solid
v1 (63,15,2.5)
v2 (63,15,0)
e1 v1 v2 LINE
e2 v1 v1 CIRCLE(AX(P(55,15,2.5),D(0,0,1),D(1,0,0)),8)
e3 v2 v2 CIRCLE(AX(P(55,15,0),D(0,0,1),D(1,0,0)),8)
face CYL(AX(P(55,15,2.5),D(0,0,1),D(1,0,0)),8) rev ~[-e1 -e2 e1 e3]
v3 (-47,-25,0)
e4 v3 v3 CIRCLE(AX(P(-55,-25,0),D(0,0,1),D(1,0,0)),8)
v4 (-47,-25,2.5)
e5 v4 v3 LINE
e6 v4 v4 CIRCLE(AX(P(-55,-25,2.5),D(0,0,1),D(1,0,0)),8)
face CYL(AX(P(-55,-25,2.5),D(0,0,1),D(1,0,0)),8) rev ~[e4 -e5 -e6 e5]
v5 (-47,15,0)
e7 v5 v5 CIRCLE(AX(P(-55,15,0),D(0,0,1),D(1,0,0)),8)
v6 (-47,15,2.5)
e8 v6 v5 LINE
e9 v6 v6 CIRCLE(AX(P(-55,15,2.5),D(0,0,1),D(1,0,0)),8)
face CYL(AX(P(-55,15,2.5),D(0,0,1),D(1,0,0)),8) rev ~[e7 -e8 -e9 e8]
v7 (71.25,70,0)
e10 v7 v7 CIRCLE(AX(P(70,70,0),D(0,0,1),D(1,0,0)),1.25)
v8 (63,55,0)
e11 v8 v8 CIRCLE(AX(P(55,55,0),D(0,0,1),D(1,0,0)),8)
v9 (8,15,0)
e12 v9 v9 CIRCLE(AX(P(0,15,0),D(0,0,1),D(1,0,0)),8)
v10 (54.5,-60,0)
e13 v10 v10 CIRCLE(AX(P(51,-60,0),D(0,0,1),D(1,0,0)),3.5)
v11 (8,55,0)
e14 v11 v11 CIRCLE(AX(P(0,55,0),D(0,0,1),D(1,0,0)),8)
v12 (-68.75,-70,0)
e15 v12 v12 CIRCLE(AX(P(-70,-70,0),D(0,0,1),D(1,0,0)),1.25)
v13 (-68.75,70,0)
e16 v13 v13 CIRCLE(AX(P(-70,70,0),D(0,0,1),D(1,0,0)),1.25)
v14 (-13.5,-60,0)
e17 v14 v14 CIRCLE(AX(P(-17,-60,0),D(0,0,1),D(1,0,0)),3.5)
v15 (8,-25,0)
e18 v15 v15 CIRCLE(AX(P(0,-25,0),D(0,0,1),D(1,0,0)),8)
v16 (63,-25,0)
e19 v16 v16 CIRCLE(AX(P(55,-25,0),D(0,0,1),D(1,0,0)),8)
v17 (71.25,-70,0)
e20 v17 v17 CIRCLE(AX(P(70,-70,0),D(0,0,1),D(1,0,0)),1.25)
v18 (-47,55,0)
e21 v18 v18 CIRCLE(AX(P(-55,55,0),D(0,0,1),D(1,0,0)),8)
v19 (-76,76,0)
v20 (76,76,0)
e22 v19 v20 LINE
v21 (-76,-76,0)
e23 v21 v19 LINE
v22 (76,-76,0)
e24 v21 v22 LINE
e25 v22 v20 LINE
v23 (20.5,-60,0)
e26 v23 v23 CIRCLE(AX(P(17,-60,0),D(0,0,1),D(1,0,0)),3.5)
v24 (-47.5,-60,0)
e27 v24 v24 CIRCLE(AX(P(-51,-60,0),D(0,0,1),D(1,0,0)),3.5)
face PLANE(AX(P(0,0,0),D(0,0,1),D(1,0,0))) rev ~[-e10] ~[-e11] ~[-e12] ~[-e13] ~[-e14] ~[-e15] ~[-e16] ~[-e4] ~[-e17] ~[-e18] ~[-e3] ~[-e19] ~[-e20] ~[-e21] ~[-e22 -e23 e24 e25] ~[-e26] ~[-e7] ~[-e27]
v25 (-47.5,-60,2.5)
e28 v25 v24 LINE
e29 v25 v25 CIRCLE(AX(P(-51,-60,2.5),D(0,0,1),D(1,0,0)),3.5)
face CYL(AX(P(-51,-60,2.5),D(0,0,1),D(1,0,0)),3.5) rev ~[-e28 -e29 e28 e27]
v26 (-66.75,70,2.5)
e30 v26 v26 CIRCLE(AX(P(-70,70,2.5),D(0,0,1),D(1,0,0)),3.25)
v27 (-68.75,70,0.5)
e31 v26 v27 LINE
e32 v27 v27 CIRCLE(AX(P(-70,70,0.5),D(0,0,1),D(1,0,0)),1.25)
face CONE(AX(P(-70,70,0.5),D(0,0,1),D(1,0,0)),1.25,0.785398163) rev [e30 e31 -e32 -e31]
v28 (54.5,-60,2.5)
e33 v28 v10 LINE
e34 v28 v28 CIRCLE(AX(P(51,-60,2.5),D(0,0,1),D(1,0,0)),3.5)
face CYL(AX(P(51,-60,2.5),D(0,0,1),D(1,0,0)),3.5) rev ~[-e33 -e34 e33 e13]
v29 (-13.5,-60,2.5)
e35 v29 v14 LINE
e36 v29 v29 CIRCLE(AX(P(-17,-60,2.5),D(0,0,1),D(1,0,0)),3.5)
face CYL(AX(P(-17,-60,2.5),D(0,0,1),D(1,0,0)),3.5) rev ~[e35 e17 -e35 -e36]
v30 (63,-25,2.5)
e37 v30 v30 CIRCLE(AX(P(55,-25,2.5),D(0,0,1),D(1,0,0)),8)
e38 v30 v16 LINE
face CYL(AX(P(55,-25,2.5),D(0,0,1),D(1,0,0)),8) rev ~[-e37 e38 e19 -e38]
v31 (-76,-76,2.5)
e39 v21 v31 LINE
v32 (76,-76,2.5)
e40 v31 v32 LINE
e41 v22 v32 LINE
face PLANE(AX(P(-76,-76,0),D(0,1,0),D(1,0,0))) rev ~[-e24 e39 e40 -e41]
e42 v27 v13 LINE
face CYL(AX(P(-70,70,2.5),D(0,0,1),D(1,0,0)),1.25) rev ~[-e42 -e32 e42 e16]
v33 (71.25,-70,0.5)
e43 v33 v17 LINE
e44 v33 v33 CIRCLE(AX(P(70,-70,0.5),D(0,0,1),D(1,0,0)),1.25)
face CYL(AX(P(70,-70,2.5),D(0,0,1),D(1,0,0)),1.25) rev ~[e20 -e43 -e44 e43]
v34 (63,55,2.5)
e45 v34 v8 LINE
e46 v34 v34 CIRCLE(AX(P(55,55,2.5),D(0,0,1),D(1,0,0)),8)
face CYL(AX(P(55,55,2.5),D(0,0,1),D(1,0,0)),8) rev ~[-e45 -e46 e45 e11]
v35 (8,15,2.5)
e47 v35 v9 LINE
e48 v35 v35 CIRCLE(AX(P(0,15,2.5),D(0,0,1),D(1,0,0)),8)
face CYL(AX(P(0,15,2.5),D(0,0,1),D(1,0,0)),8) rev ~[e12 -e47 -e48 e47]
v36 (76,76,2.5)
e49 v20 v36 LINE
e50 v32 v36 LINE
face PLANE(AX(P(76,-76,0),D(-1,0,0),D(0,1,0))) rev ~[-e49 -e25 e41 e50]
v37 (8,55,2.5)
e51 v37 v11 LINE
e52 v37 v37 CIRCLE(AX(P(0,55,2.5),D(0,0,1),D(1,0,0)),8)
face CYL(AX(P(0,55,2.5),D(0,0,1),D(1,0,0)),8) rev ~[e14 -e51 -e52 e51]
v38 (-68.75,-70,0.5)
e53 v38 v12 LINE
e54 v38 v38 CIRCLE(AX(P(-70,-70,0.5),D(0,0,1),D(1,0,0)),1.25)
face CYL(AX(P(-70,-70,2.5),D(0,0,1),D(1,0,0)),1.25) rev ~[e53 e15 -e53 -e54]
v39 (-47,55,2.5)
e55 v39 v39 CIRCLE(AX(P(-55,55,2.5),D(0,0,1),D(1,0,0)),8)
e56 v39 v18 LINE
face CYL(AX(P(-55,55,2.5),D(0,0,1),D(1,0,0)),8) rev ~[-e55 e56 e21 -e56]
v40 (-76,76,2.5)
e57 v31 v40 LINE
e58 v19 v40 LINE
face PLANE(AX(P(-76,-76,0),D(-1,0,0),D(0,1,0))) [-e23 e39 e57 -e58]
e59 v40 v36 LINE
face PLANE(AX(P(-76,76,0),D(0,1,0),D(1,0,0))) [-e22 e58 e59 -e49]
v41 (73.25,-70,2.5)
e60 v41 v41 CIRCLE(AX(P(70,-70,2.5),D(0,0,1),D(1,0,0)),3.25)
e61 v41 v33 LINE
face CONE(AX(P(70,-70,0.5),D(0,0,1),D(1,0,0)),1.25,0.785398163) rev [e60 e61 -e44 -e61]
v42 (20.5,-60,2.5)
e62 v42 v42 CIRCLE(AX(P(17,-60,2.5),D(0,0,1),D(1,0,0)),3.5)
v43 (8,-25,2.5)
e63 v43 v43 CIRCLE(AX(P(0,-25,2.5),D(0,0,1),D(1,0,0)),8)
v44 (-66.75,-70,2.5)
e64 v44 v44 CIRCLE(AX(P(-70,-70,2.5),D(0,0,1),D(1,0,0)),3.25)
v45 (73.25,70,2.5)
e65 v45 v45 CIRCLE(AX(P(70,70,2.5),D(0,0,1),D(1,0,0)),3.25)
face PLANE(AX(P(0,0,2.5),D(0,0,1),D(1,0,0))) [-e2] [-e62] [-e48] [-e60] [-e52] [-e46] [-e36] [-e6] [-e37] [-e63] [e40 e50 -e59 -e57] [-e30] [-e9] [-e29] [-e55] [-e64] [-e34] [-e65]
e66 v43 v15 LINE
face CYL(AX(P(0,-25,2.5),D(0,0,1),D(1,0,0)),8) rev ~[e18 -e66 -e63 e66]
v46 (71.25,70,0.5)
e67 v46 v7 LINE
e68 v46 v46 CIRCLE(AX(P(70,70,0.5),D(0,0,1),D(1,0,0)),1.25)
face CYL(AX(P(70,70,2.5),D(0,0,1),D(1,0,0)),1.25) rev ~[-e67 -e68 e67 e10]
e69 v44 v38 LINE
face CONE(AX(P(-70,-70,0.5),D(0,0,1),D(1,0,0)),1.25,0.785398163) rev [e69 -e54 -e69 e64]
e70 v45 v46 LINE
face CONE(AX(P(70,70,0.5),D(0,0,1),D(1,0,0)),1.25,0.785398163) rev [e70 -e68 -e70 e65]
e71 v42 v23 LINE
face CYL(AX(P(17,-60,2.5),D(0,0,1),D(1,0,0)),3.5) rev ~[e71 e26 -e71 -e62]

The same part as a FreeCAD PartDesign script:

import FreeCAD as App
import Part
import Sketcher

V = App.Vector
Q = App.Units.Quantity


def edges_at(feature, points):
    """Names of the edges that pass closest to the given points."""
    edges = feature.Shape.Edges
    near = lambda p: min(range(len(edges)), key=lambda i: edges[i].distToShape(Part.Vertex(*p))[0])
    return sorted({f"Edge{near(p) + 1}" for p in points})

doc = App.newDocument("Part")
body = doc.addObject("PartDesign::Body", "Body")

sketch1 = body.newObject("Sketcher::SketchObject", "Sketch")
sketch1.AttachmentSupport = (doc.getObject("XY_Plane"), [""])
sketch1.MapMode = "FlatFace"
sketch1.addGeometry(Part.LineSegment(V(-76, 76, 0), V(-76, -76, 0)), False)
sketch1.addGeometry(Part.LineSegment(V(-76, -76, 0), V(76, -76, 0)), False)
sketch1.addGeometry(Part.LineSegment(V(76, -76, 0), V(76, 76, 0)), False)
sketch1.addGeometry(Part.LineSegment(V(76, 76, 0), V(-76, 76, 0)), False)
sketch1.addConstraint(Sketcher.Constraint("Coincident", 0, 2, 1, 1))
sketch1.addConstraint(Sketcher.Constraint("Coincident", 1, 2, 2, 1))
sketch1.addConstraint(Sketcher.Constraint("Coincident", 2, 2, 3, 1))
sketch1.addConstraint(Sketcher.Constraint("Coincident", 3, 2, 0, 1))
sketch1.addConstraint(Sketcher.Constraint("Vertical", 0))
sketch1.addConstraint(Sketcher.Constraint("Horizontal", 1))
sketch1.addConstraint(Sketcher.Constraint("Vertical", 2))
sketch1.addConstraint(Sketcher.Constraint("Horizontal", 3))
sketch1.addConstraint(Sketcher.Constraint("Symmetric", 0, 2, 2, 2, -1, 1))
sketch1.addConstraint(Sketcher.Constraint("Equal", 3, 0))
sketch1.addConstraint(Sketcher.Constraint("DistanceX", 1, 1, 1, 2, Q("152 mm")))
pad1 = body.newObject("PartDesign::Pad", "Pad")
pad1.Profile = sketch1
pad1.Length = 2.5

sketch2 = body.newObject("Sketcher::SketchObject", "Sketch001")
sketch2.AttachmentSupport = (doc.getObject("XY_Plane"), [""])
sketch2.MapMode = "FlatFace"
sketch2.AttachmentOffset = App.Placement(V(0, 0, 2.5), App.Rotation())
sketch2.addGeometry(Part.Circle(V(-55, 55, 0), V(0, 0, 1), 8), False)
sketch2.addGeometry(Part.Circle(V(-51, -60, 0), V(0, 0, 1), 3.5), False)
sketch2.addGeometry(Part.Circle(V(-55, 15, 0), V(0, 0, 1), 8), False)
sketch2.addGeometry(Part.Circle(V(0, 15, 0), V(0, 0, 1), 8), False)
sketch2.addGeometry(Part.Circle(V(0, -25, 0), V(0, 0, 1), 8), False)
sketch2.addGeometry(Part.Circle(V(0, 55, 0), V(0, 0, 1), 8), False)
sketch2.addGeometry(Part.Circle(V(-17, -60, 0), V(0, 0, 1), 3.5), False)
sketch2.addGeometry(Part.Circle(V(17, -60, 0), V(0, 0, 1), 3.5), False)
sketch2.addGeometry(Part.Circle(V(51, -60, 0), V(0, 0, 1), 3.5), False)
sketch2.addGeometry(Part.Circle(V(55, 55, 0), V(0, 0, 1), 8), False)
sketch2.addGeometry(Part.Circle(V(-55, -25, 0), V(0, 0, 1), 8), False)
sketch2.addGeometry(Part.Circle(V(55, -25, 0), V(0, 0, 1), 8), False)
sketch2.addGeometry(Part.Circle(V(55, 15, 0), V(0, 0, 1), 8), False)
sketch2.addConstraint(Sketcher.Constraint("Equal", 0, 2))
sketch2.addConstraint(Sketcher.Constraint("Equal", 2, 3))
sketch2.addConstraint(Sketcher.Constraint("Equal", 3, 4))
sketch2.addConstraint(Sketcher.Constraint("Equal", 4, 5))
sketch2.addConstraint(Sketcher.Constraint("Equal", 1, 6))
sketch2.addConstraint(Sketcher.Constraint("Equal", 6, 7))
sketch2.addConstraint(Sketcher.Constraint("Equal", 7, 8))
sketch2.addConstraint(Sketcher.Constraint("Equal", 5, 9))
sketch2.addConstraint(Sketcher.Constraint("Equal", 9, 10))
sketch2.addConstraint(Sketcher.Constraint("Equal", 10, 11))
sketch2.addConstraint(Sketcher.Constraint("Equal", 11, 12))
sketch2.addConstraint(Sketcher.Constraint("Symmetric", 6, 3, 7, 3, -2))
sketch2.addConstraint(Sketcher.Constraint("Symmetric", 1, 3, 8, 3, -2))
sketch2.addConstraint(Sketcher.Constraint("Symmetric", 0, 3, 9, 3, -2))
sketch2.addConstraint(Sketcher.Constraint("Symmetric", 10, 3, 11, 3, -2))
sketch2.addConstraint(Sketcher.Constraint("Symmetric", 2, 3, 12, 3, -2))
sketch2.addConstraint(Sketcher.Constraint("PointOnObject", 3, 3, -2))
sketch2.addConstraint(Sketcher.Constraint("PointOnObject", 4, 3, -2))
sketch2.addConstraint(Sketcher.Constraint("PointOnObject", 5, 3, -2))
sketch2.addConstraint(Sketcher.Constraint("Horizontal", 2, 3, 3, 3))
sketch2.addConstraint(Sketcher.Constraint("Horizontal", 0, 3, 5, 3))
sketch2.addConstraint(Sketcher.Constraint("Horizontal", 1, 3, 6, 3))
sketch2.addConstraint(Sketcher.Constraint("Horizontal", 4, 3, 10, 3))
sketch2.addConstraint(Sketcher.Constraint("Vertical", 0, 3, 2, 3))
sketch2.addConstraint(Sketcher.Constraint("Vertical", 2, 3, 10, 3))
sketch2.addConstraint(Sketcher.Constraint("Diameter", 0, Q("16 mm")))
sketch2.addConstraint(Sketcher.Constraint("Diameter", 1, Q("7 mm")))
sketch2.addConstraint(Sketcher.Constraint("DistanceX", 0, 3, -1, 1, Q("55 mm")))
sketch2.addConstraint(Sketcher.Constraint("DistanceY", -1, 1, 0, 3, Q("55 mm")))
sketch2.addConstraint(Sketcher.Constraint("DistanceX", 1, 3, -1, 1, Q("51 mm")))
sketch2.addConstraint(Sketcher.Constraint("DistanceY", 1, 3, -1, 1, Q("60 mm")))
sketch2.addConstraint(Sketcher.Constraint("DistanceY", -1, 1, 2, 3, Q("15 mm")))
sketch2.addConstraint(Sketcher.Constraint("DistanceY", 4, 3, -1, 1, Q("25 mm")))
sketch2.addConstraint(Sketcher.Constraint("DistanceX", 6, 3, -1, 1, Q("17 mm")))
pocket1 = body.newObject("PartDesign::Pocket", "Pocket")
pocket1.Profile = sketch2
pocket1.Length = 5

sketch3 = body.newObject("Sketcher::SketchObject", "Sketch002")
sketch3.AttachmentSupport = (doc.getObject("XY_Plane"), [""])
sketch3.MapMode = "FlatFace"
sketch3.AttachmentOffset = App.Placement(V(0, 0, 2.5), App.Rotation())
sketch3.addGeometry(Part.Circle(V(-70, 70, 0), V(0, 0, 1), 1.2), False)
sketch3.addGeometry(Part.Circle(V(70, 70, 0), V(0, 0, 1), 1.2), False)
sketch3.addGeometry(Part.Circle(V(70, -70, 0), V(0, 0, 1), 1.2), False)
sketch3.addGeometry(Part.Circle(V(-70, -70, 0), V(0, 0, 1), 1.2), False)
sketch3.addConstraint(Sketcher.Constraint("Equal", 0, 1))
sketch3.addConstraint(Sketcher.Constraint("Equal", 1, 2))
sketch3.addConstraint(Sketcher.Constraint("Equal", 2, 3))
sketch3.addConstraint(Sketcher.Constraint("Symmetric", 0, 3, 2, 3, -1, 1))
sketch3.addConstraint(Sketcher.Constraint("Symmetric", 1, 3, 3, 3, -1, 1))
sketch3.addConstraint(Sketcher.Constraint("Symmetric", 0, 3, 1, 3, -2))
sketch3.addConstraint(Sketcher.Constraint("Diameter", 0, Q("2.5 mm")))
sketch3.addConstraint(Sketcher.Constraint("DistanceX", 0, 3, -1, 1, Q("70 mm")))
sketch3.addConstraint(Sketcher.Constraint("DistanceY", -1, 1, 0, 3, Q("70 mm")))
pocket2 = body.newObject("PartDesign::Pocket", "Pocket001")
pocket2.Profile = sketch3
pocket2.Length = 5
doc.recompute()

chamfer = body.newObject("PartDesign::Chamfer", "Chamfer")
chamfer.Base = (pocket2, edges_at(pocket2, [
    (-71.25, 70, 2.5),
    (68.75, 70, 2.5),
    (68.75, -70, 2.5),
    (-71.25, -70, 2.5),
]))
chamfer.Size = 2

doc.recompute()
